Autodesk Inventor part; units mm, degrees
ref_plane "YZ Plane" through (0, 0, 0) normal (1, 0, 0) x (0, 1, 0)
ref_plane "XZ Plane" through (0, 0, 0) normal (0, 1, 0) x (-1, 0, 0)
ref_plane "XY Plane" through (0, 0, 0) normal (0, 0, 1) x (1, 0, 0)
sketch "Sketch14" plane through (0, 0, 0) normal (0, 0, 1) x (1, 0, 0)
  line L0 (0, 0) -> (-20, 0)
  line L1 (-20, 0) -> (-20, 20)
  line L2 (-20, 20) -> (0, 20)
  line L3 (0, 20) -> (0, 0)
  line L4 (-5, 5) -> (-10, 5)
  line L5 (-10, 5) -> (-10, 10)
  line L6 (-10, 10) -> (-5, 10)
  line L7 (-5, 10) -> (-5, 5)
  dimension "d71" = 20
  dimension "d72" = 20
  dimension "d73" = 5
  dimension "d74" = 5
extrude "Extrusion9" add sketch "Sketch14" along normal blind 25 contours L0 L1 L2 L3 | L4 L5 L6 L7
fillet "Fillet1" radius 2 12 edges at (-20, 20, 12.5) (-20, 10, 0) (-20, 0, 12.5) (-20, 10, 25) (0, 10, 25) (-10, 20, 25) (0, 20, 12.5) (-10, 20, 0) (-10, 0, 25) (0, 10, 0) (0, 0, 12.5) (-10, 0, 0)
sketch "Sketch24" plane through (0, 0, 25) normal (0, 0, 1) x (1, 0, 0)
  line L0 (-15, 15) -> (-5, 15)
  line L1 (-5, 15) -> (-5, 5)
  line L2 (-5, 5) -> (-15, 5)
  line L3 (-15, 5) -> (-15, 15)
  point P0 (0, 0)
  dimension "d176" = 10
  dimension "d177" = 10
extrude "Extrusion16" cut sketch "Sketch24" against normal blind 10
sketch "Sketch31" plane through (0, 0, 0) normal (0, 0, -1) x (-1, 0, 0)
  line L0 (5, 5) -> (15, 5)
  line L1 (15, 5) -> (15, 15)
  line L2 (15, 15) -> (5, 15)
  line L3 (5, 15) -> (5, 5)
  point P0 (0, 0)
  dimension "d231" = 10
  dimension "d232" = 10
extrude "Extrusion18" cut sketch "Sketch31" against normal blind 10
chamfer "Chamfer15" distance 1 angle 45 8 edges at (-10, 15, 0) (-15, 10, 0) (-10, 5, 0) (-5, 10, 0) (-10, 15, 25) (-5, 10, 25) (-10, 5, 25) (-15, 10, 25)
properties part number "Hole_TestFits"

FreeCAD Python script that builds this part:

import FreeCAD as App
import Part
import Sketcher
Q = App.Units.Quantity


def edges_at(feature, points):
    """Names of the edges that pass closest to the given points."""
    edges = feature.Shape.Edges
    near = lambda p: min(range(len(edges)), key=lambda i: edges[i].distToShape(Part.Vertex(*p))[0])
    return sorted({f"Edge{near(p) + 1}" for p in points})

doc = App.newDocument("Part")
body = doc.addObject("PartDesign::Body", "Body")

# Sketch on XY plane
sketch1 = doc.addObject("Sketcher::SketchObject", "Sketch")
body.addObject(sketch1)
sketch1.AttachmentSupport = (doc.XY_Plane, [""])
sketch1.MapMode = "FlatFace"
sketch1.addGeometry(Part.LineSegment(App.Vector(-20, 0, 0), App.Vector(0, 0, 0)), False)
sketch1.addGeometry(Part.LineSegment(App.Vector(0, 0, 0), App.Vector(0, 20, 0)), False)
sketch1.addGeometry(Part.LineSegment(App.Vector(0, 20, 0), App.Vector(-20, 20, 0)), False)
sketch1.addGeometry(Part.LineSegment(App.Vector(-20, 20, 0), App.Vector(-20, 0, 0)), False)
sketch1.addConstraint(Sketcher.Constraint("Coincident", 0, 2, 1, 1))
sketch1.addConstraint(Sketcher.Constraint("Coincident", 1, 2, 2, 1))
sketch1.addConstraint(Sketcher.Constraint("Coincident", 2, 2, 3, 1))
sketch1.addConstraint(Sketcher.Constraint("Coincident", 3, 2, 0, 1))
sketch1.addConstraint(Sketcher.Constraint("Horizontal", 0))
sketch1.addConstraint(Sketcher.Constraint("Vertical", 1))
sketch1.addConstraint(Sketcher.Constraint("Horizontal", 2))
sketch1.addConstraint(Sketcher.Constraint("Vertical", 3))
sketch1.addConstraint(Sketcher.Constraint("Coincident", 0, 2, -1, 1))
sketch1.addConstraint(Sketcher.Constraint("Equal", 2, 1))
sketch1.addConstraint(Sketcher.Constraint("DistanceX", 0, 1, 0, 2, Q("20 mm")))
pad1 = doc.addObject("PartDesign::Pad", "Pad")
body.addObject(pad1)
pad1.Profile = sketch1
pad1.Length = 25
doc.recompute()

fillet = doc.addObject("PartDesign::Fillet", "Fillet")
body.addObject(fillet)
fillet.Base = (pad1, ["Edge1"])
fillet.UseAllEdges = True
fillet.Radius = 2

# Sketch on XY plane
sketch2 = doc.addObject("Sketcher::SketchObject", "Sketch001")
body.addObject(sketch2)
sketch2.AttachmentSupport = (doc.XY_Plane, [""])
sketch2.MapMode = "FlatFace"
sketch2.AttachmentOffset = App.Placement(App.Vector(0, 0, 25), App.Rotation())
sketch2.addGeometry(Part.LineSegment(App.Vector(-5, 15, 0), App.Vector(-15, 15, 0)), False)
sketch2.addGeometry(Part.LineSegment(App.Vector(-15, 15, 0), App.Vector(-15, 5, 0)), False)
sketch2.addGeometry(Part.LineSegment(App.Vector(-15, 5, 0), App.Vector(-5, 5, 0)), False)
sketch2.addGeometry(Part.LineSegment(App.Vector(-5, 5, 0), App.Vector(-5, 15, 0)), False)
sketch2.addConstraint(Sketcher.Constraint("Coincident", 0, 2, 1, 1))
sketch2.addConstraint(Sketcher.Constraint("Coincident", 1, 2, 2, 1))
sketch2.addConstraint(Sketcher.Constraint("Coincident", 2, 2, 3, 1))
sketch2.addConstraint(Sketcher.Constraint("Coincident", 3, 2, 0, 1))
sketch2.addConstraint(Sketcher.Constraint("Horizontal", 0))
sketch2.addConstraint(Sketcher.Constraint("Vertical", 1))
sketch2.addConstraint(Sketcher.Constraint("Horizontal", 2))
sketch2.addConstraint(Sketcher.Constraint("Vertical", 3))
sketch2.addConstraint(Sketcher.Constraint("Equal", 2, 1))
sketch2.addConstraint(Sketcher.Constraint("DistanceX", 0, 2, 0, 1, Q("10 mm")))
sketch2.addConstraint(Sketcher.Constraint("DistanceX", 0, 2, -1, 1, Q("15 mm")))
sketch2.addConstraint(Sketcher.Constraint("DistanceY", -1, 1, 0, 2, Q("15 mm")))
pocket1 = doc.addObject("PartDesign::Pocket", "Pocket")
body.addObject(pocket1)
pocket1.Profile = sketch2
pocket1.Length = 10

# Sketch on XY plane
sketch3 = doc.addObject("Sketcher::SketchObject", "Sketch002")
body.addObject(sketch3)
sketch3.AttachmentSupport = (doc.XY_Plane, [""])
sketch3.MapMode = "FlatFace"
sketch3.addGeometry(Part.LineSegment(App.Vector(-5, 15, 0), App.Vector(-5, 5, 0)), False)
sketch3.addGeometry(Part.LineSegment(App.Vector(-5, 5, 0), App.Vector(-15, 5, 0)), False)
sketch3.addGeometry(Part.LineSegment(App.Vector(-15, 5, 0), App.Vector(-15, 15, 0)), False)
sketch3.addGeometry(Part.LineSegment(App.Vector(-15, 15, 0), App.Vector(-5, 15, 0)), False)
sketch3.addConstraint(Sketcher.Constraint("Coincident", 0, 2, 1, 1))
sketch3.addConstraint(Sketcher.Constraint("Coincident", 1, 2, 2, 1))
sketch3.addConstraint(Sketcher.Constraint("Coincident", 2, 2, 3, 1))
sketch3.addConstraint(Sketcher.Constraint("Coincident", 3, 2, 0, 1))
sketch3.addConstraint(Sketcher.Constraint("Vertical", 0))
sketch3.addConstraint(Sketcher.Constraint("Horizontal", 1))
sketch3.addConstraint(Sketcher.Constraint("Vertical", 2))
sketch3.addConstraint(Sketcher.Constraint("Horizontal", 3))
sketch3.addConstraint(Sketcher.Constraint("Equal", 3, 0))
sketch3.addConstraint(Sketcher.Constraint("DistanceX", 1, 2, 1, 1, Q("10 mm")))
sketch3.addConstraint(Sketcher.Constraint("DistanceX", 0, 2, -1, 1, Q("5 mm")))
sketch3.addConstraint(Sketcher.Constraint("DistanceY", -1, 1, 0, 2, Q("5 mm")))
pocket2 = doc.addObject("PartDesign::Pocket", "Pocket001")
body.addObject(pocket2)
pocket2.Profile = sketch3
pocket2.Length = 10
pocket2.Reversed = True
doc.recompute()

chamfer = doc.addObject("PartDesign::Chamfer", "Chamfer")
body.addObject(chamfer)
chamfer.Base = (pocket2, edges_at(pocket2, [
    (-10, 15, 0),
    (-15, 10, 0),
    (-10, 5, 0),
    (-5, 10, 0),
    (-10, 15, 25),
    (-5, 10, 25),
    (-10, 5, 25),
    (-15, 10, 25),
]))
chamfer.Size = 1

doc.recompute()
